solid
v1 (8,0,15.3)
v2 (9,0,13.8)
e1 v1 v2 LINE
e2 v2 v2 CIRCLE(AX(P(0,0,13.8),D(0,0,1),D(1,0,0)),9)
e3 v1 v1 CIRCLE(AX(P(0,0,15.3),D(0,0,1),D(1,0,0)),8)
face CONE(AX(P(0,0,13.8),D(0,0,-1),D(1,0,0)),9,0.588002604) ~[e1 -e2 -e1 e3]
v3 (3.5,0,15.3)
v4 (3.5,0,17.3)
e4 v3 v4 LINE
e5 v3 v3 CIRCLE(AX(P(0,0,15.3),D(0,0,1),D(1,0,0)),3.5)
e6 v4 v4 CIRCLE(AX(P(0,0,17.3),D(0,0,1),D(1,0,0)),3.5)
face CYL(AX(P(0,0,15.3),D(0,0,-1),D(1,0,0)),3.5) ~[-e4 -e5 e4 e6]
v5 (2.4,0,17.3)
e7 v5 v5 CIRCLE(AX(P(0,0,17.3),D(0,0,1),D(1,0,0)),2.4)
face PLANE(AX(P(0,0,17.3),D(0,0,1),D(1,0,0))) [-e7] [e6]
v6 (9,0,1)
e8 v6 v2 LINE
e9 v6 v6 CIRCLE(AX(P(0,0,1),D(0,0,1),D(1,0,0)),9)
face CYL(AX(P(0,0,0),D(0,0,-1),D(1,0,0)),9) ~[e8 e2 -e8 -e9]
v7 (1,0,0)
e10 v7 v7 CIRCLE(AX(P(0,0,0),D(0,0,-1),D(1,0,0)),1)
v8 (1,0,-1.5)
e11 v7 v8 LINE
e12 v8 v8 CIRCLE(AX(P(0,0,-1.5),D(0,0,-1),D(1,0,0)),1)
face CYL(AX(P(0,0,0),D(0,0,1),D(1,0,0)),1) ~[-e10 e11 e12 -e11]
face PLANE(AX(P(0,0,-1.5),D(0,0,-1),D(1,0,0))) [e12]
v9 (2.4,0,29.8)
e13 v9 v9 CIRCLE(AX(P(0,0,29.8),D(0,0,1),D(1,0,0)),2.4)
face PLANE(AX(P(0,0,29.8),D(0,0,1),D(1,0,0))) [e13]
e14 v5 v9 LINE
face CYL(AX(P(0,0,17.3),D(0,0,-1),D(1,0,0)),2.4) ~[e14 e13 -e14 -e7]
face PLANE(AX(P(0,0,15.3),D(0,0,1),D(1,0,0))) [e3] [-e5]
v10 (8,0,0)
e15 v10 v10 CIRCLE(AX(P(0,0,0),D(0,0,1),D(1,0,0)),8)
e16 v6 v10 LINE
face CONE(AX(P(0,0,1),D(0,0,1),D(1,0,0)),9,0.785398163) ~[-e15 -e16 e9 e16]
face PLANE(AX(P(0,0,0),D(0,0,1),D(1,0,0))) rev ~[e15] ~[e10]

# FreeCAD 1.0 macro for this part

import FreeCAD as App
import Part
import Sketcher

V = App.Vector
Q = App.Units.Quantity


def edges_at(feature, points):
    """Names of the edges that pass closest to the given points."""
    edges = feature.Shape.Edges
    near = lambda p: min(range(len(edges)), key=lambda i: edges[i].distToShape(Part.Vertex(*p))[0])
    return sorted({f"Edge{near(p) + 1}" for p in points})

doc = App.newDocument("Part")
params = doc.addObject("Spreadsheet::Sheet", "Params")
for row, (alias, value) in enumerate([
    ("sketch1_diameter", "18 mm"),
    ("pad1_length", "15.3 mm"),
    ("chamfer_size", "1 mm"),
    ("chamfer2_size", "1 mm"),
    ("chamfer2_size2", "1.5 mm"),
    ("sketch2_diameter", "7 mm"),
    ("pad2_length", "2 mm"),
    ("sketch3_diameter", "4.8 mm"),
    ("pad3_length", "12.5 mm"),
    ("sketch4_diameter", "2 mm"),
    ("pad4_length", "1.5 mm"),
], start=1):
    params.set(f"A{row}", alias)
    params.set(f"B{row}", "=" + value)
    params.setAlias(f"B{row}", alias)

body = doc.addObject("PartDesign::Body", "Body")

# Sketch on XY plane
sketch1 = body.newObject("Sketcher::SketchObject", "Sketch")
sketch1.AttachmentSupport = (doc.getObject("XY_Plane"), [""])
sketch1.MapMode = "FlatFace"
sketch1.addGeometry(Part.Circle(V(0, 0, 0), V(0, 0, 1), 9), False)
sketch1.addConstraint(Sketcher.Constraint("Coincident", 0, 3, -1, 1))
sketch1.addConstraint(Sketcher.Constraint("Diameter", 0, Q("18 mm")))
sketch1.setExpression("Constraints[1]", "Params.sketch1_diameter")
pad1 = body.newObject("PartDesign::Pad", "Pad")
pad1.Profile = sketch1
pad1.setExpression("Length", "Params.pad1_length")
doc.recompute()

chamfer = body.newObject("PartDesign::Chamfer", "Chamfer")
chamfer.Base = (pad1, edges_at(pad1, [(-9, 0, 0)]))
chamfer.setExpression("Size", "Params.chamfer_size")
doc.recompute()

chamfer2 = body.newObject("PartDesign::Chamfer", "Chamfer001")
chamfer2.Base = (chamfer, edges_at(chamfer, [(-9, 0, 15.3)]))
chamfer2.ChamferType = "Two distances"
chamfer2.setExpression("Size", "Params.chamfer2_size")
chamfer2.setExpression("Size2", "Params.chamfer2_size2")
chamfer2.FlipDirection = True

# Sketch on XY plane
sketch2 = body.newObject("Sketcher::SketchObject", "Sketch001")
sketch2.AttachmentSupport = (doc.getObject("XY_Plane"), [""])
sketch2.MapMode = "FlatFace"
sketch2.AttachmentOffset = App.Placement(V(0, 0, 15.3), App.Rotation())
sketch2.addGeometry(Part.Circle(V(0, 0, 0), V(0, 0, 1), 3.5), False)
sketch2.addConstraint(Sketcher.Constraint("Coincident", 0, 3, -1, 1))
sketch2.addConstraint(Sketcher.Constraint("Diameter", 0, Q("7 mm")))
sketch2.setExpression("Constraints[1]", "Params.sketch2_diameter")
pad2 = body.newObject("PartDesign::Pad", "Pad001")
pad2.Profile = sketch2
pad2.setExpression("Length", "Params.pad2_length")

# Sketch on XY plane
sketch3 = body.newObject("Sketcher::SketchObject", "Sketch002")
sketch3.AttachmentSupport = (doc.getObject("XY_Plane"), [""])
sketch3.MapMode = "FlatFace"
sketch3.AttachmentOffset = App.Placement(V(0, 0, 17.3), App.Rotation())
sketch3.addGeometry(Part.Circle(V(0, 0, 0), V(0, 0, 1), 2.4), False)
sketch3.addConstraint(Sketcher.Constraint("Coincident", 0, 3, -1, 1))
sketch3.addConstraint(Sketcher.Constraint("Diameter", 0, Q("4.8 mm")))
sketch3.setExpression("Constraints[1]", "Params.sketch3_diameter")
pad3 = body.newObject("PartDesign::Pad", "Pad002")
pad3.Profile = sketch3
pad3.setExpression("Length", "Params.pad3_length")

# Sketch on XY plane
sketch4 = body.newObject("Sketcher::SketchObject", "Sketch003")
sketch4.AttachmentSupport = (doc.getObject("XY_Plane"), [""])
sketch4.MapMode = "FlatFace"
sketch4.addGeometry(Part.Circle(V(0, 0, 0), V(0, 0, 1), 1), False)
sketch4.addConstraint(Sketcher.Constraint("Coincident", 0, 3, -1, 1))
sketch4.addConstraint(Sketcher.Constraint("Diameter", 0, Q("2 mm")))
sketch4.setExpression("Constraints[1]", "Params.sketch4_diameter")
pad4 = body.newObject("PartDesign::Pad", "Pad003")
pad4.Profile = sketch4
pad4.setExpression("Length", "Params.pad4_length")
pad4.Reversed = True

doc.recompute()
